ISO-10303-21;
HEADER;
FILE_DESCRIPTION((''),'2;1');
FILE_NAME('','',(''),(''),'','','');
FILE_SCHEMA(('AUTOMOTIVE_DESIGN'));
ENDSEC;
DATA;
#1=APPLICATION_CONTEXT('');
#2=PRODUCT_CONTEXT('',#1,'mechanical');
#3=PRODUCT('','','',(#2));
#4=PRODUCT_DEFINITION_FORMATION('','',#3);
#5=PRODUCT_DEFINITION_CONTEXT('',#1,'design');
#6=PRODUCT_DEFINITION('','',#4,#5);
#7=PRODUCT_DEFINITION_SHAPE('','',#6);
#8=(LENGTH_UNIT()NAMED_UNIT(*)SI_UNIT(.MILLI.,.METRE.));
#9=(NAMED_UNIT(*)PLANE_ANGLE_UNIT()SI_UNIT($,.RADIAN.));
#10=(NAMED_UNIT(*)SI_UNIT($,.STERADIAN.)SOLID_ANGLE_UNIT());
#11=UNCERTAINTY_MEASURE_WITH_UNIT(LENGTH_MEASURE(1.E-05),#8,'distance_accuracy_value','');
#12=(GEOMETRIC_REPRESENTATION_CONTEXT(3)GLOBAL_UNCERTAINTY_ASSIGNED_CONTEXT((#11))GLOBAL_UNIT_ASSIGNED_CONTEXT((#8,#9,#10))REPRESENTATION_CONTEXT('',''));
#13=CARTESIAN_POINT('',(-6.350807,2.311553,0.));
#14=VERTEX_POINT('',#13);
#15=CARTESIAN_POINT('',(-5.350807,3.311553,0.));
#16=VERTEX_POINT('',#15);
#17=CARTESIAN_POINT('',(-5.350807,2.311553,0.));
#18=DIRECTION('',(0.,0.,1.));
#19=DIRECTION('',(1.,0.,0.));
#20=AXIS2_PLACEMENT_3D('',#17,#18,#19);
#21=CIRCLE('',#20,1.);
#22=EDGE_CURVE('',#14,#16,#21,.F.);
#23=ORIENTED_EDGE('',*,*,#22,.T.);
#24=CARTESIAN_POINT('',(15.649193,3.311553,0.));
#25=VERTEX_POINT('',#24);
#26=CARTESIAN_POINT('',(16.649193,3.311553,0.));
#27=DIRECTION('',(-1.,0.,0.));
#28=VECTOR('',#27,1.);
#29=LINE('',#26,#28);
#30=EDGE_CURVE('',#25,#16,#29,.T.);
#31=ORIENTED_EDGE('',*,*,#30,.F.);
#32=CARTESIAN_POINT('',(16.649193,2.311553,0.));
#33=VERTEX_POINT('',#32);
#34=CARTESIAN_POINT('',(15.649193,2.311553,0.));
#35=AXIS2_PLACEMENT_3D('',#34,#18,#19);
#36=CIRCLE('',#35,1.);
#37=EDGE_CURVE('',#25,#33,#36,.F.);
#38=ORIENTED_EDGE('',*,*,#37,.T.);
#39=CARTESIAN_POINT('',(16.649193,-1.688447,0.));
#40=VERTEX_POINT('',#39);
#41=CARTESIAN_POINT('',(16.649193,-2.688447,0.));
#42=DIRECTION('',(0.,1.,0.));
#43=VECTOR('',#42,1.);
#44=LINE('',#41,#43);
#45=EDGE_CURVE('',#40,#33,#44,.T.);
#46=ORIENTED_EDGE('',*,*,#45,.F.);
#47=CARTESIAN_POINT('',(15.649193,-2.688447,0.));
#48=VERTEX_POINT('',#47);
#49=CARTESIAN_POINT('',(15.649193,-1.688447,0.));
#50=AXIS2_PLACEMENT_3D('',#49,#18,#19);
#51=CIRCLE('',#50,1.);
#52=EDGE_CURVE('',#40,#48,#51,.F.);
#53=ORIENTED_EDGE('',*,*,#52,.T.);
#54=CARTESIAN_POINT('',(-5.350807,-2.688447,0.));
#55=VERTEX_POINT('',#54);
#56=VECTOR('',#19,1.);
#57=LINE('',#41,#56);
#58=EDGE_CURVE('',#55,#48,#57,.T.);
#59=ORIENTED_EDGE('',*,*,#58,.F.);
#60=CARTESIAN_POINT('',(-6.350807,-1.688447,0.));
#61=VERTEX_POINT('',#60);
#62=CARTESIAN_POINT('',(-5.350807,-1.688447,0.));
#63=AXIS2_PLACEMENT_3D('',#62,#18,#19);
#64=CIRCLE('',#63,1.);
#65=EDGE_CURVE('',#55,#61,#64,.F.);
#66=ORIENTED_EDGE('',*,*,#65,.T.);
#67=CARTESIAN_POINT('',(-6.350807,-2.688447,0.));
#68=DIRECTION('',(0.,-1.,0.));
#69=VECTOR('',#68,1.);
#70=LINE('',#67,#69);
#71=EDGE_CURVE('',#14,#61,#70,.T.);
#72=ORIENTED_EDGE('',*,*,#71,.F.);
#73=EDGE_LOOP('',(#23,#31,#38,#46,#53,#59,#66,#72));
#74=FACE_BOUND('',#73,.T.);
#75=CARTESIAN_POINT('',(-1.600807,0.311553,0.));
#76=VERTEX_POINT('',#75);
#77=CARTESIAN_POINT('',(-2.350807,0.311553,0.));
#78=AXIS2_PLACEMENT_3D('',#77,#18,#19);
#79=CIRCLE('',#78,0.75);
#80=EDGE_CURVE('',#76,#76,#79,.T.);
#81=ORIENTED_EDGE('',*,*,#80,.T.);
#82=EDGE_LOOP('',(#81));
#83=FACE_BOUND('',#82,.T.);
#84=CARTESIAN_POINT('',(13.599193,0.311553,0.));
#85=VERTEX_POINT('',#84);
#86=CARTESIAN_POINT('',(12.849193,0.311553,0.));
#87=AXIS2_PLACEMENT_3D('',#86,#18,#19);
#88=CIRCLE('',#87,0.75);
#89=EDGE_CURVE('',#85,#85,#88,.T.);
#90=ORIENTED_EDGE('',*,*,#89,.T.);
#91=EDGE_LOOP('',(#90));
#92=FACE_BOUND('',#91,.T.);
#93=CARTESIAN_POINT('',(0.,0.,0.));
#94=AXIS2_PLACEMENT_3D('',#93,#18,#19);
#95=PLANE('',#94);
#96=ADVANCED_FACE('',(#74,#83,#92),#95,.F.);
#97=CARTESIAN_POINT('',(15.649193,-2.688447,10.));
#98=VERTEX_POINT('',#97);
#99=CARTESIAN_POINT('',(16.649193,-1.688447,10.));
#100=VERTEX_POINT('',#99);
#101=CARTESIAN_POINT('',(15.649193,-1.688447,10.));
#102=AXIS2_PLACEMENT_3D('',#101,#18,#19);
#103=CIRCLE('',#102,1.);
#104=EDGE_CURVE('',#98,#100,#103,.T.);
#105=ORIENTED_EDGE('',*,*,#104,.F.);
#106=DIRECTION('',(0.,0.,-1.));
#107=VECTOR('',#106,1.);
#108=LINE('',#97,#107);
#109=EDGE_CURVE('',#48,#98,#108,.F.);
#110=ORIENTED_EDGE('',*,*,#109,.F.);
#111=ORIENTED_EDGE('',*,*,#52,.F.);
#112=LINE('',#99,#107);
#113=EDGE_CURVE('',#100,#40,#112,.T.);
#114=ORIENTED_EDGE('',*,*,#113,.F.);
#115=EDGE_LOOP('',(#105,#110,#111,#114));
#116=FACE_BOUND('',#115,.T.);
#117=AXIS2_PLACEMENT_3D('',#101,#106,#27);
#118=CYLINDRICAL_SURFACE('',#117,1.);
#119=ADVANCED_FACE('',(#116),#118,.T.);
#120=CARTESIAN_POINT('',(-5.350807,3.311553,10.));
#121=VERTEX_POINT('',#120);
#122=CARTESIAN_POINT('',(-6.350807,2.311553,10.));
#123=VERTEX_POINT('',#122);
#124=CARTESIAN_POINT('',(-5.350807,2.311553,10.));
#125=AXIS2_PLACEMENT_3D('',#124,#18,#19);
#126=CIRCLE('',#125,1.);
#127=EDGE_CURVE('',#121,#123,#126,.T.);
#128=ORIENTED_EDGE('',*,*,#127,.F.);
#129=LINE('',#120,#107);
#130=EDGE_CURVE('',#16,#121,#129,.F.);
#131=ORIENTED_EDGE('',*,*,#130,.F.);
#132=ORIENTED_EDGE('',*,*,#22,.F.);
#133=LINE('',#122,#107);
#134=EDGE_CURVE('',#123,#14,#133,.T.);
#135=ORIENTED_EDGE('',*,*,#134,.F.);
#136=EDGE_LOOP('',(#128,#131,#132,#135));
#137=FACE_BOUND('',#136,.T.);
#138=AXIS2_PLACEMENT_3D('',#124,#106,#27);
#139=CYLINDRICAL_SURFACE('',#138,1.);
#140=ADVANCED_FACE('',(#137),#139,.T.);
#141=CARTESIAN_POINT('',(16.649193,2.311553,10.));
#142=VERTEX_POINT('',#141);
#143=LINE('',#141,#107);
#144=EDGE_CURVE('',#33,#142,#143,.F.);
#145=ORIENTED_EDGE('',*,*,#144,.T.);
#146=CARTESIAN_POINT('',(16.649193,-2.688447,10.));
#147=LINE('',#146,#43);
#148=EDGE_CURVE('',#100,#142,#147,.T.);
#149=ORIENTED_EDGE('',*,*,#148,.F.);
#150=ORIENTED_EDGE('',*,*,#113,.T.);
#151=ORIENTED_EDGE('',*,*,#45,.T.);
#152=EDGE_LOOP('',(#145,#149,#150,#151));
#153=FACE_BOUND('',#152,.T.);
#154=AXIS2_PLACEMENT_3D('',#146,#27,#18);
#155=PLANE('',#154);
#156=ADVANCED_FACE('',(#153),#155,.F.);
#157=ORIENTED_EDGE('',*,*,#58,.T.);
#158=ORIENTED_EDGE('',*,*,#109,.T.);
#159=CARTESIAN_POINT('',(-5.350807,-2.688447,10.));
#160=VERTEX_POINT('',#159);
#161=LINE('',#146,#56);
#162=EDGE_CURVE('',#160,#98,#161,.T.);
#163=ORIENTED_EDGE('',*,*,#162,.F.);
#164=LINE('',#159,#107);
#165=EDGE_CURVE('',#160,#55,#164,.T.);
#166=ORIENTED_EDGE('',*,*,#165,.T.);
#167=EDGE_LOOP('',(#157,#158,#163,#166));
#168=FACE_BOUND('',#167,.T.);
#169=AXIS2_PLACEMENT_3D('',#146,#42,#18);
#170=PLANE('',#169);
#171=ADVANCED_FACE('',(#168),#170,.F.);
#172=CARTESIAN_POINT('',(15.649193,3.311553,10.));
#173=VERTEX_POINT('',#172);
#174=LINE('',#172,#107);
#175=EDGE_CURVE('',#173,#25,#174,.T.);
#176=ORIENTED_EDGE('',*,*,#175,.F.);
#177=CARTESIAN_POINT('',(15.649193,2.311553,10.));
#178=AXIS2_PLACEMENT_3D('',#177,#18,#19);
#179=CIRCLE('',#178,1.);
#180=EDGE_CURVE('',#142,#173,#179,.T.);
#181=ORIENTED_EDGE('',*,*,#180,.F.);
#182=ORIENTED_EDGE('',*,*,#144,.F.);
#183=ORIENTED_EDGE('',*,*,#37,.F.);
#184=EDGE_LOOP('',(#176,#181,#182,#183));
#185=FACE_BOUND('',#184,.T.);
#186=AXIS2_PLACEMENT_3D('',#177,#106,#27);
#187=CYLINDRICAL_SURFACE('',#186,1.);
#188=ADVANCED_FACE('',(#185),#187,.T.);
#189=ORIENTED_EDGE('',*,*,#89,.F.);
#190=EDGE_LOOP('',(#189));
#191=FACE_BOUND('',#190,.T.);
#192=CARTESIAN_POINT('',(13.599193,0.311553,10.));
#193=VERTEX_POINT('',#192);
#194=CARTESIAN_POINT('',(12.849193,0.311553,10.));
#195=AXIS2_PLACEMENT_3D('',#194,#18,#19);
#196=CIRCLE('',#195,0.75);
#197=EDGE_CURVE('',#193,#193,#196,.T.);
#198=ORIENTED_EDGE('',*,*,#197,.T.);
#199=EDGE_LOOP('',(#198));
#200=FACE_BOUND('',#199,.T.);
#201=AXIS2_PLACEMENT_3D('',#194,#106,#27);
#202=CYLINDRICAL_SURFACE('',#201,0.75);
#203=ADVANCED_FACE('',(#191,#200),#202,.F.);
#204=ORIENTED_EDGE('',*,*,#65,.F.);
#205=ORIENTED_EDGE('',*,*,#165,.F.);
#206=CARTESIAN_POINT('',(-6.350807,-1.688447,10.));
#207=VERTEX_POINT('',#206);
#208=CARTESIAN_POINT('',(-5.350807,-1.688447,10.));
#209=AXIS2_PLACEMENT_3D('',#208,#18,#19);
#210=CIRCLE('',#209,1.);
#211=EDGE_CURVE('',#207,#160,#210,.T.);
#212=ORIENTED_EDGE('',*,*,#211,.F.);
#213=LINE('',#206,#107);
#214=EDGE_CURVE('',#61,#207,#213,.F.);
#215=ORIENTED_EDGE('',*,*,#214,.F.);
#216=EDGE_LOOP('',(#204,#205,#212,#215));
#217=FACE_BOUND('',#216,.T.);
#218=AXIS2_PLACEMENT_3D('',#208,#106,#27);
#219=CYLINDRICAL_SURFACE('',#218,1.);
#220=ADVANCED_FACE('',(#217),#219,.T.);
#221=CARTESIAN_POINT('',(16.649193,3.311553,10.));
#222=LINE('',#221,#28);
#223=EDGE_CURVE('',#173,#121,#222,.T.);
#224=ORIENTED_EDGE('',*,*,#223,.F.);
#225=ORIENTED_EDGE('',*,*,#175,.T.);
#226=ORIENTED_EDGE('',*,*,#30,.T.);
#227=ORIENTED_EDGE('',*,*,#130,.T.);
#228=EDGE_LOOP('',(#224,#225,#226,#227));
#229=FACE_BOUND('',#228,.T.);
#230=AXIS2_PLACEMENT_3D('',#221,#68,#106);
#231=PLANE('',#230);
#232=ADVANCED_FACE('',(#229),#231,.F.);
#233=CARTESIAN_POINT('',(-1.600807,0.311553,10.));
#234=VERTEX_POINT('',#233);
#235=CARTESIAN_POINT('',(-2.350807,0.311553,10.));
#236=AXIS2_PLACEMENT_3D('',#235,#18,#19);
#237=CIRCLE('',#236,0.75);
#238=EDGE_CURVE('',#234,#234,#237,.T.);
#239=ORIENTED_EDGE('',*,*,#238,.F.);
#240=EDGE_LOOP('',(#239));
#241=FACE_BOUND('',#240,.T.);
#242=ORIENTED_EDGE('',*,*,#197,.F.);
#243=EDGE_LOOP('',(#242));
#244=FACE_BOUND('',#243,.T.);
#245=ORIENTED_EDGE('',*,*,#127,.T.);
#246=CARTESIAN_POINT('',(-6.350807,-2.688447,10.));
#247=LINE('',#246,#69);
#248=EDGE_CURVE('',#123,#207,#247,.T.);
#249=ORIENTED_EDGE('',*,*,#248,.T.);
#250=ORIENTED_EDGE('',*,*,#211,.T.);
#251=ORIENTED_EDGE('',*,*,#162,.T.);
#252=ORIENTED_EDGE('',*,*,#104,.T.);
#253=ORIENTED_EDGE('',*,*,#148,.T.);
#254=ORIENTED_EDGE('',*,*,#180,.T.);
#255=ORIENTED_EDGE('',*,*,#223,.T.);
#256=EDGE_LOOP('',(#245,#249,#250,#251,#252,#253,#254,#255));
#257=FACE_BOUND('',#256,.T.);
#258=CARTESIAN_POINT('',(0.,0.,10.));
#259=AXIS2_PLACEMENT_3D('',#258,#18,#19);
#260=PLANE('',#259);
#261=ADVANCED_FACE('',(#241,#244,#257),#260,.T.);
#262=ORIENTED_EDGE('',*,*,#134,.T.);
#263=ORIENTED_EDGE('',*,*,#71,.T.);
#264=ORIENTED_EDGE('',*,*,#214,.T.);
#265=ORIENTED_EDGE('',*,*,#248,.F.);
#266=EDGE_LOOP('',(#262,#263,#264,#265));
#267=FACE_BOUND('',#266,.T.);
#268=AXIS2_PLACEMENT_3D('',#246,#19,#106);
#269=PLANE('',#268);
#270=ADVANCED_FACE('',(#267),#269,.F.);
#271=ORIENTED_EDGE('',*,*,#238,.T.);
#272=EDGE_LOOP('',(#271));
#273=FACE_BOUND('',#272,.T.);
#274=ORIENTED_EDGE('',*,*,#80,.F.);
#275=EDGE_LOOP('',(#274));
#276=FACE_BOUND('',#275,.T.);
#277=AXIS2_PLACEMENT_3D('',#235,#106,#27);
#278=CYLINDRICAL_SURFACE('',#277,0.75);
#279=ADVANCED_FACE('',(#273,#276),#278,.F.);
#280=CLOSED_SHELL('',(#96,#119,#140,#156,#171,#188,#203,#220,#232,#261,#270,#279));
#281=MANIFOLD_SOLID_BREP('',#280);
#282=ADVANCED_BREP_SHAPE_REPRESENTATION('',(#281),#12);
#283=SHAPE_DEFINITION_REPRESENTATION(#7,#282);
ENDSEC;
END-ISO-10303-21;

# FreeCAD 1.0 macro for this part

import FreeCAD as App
import Part
import Sketcher

V = App.Vector
Q = App.Units.Quantity


def edges_at(feature, points):
    """Names of the edges that pass closest to the given points."""
    edges = feature.Shape.Edges
    near = lambda p: min(range(len(edges)), key=lambda i: edges[i].distToShape(Part.Vertex(*p))[0])
    return sorted({f"Edge{near(p) + 1}" for p in points})

doc = App.newDocument("Part")
params = doc.addObject("Spreadsheet::Sheet", "Params")
for row, (alias, value) in enumerate([
    ("sketch1_diameter", "1.5 mm"),
    ("sketch1_width", "23 mm"),
    ("sketch1_height", "6 mm"),
    ("pad1_length", "10 mm"),
    ("fillet_radius", "1 mm"),
], start=1):
    params.set(f"A{row}", alias)
    params.set(f"B{row}", "=" + value)
    params.setAlias(f"B{row}", alias)

body = doc.addObject("PartDesign::Body", "Body")

# Sketch on XY plane
sketch1 = doc.addObject("Sketcher::SketchObject", "Sketch")
body.addObject(sketch1)
sketch1.AttachmentSupport = (doc.XY_Plane, [""])
sketch1.MapMode = "FlatFace"
sketch1.addGeometry(Part.LineSegment(V(-6.4, 3.3, 0), V(-6.4, -2.7, 0)), False)
sketch1.addGeometry(Part.LineSegment(V(-6.4, -2.7, 0), V(16.6, -2.7, 0)), False)
sketch1.addGeometry(Part.LineSegment(V(16.6, -2.7, 0), V(16.6, 3.3, 0)), False)
sketch1.addGeometry(Part.LineSegment(V(16.6, 3.3, 0), V(-6.4, 3.3, 0)), False)
sketch1.addGeometry(Part.Circle(V(-2.4, 0.3, 0), V(0, 0, 1), 0.8), False)
sketch1.addGeometry(Part.Circle(V(12.8, 0.3, 0), V(0, 0, 1), 0.8), False)
sketch1.addConstraint(Sketcher.Constraint("Coincident", 0, 2, 1, 1))
sketch1.addConstraint(Sketcher.Constraint("Coincident", 1, 2, 2, 1))
sketch1.addConstraint(Sketcher.Constraint("Coincident", 2, 2, 3, 1))
sketch1.addConstraint(Sketcher.Constraint("Coincident", 3, 2, 0, 1))
sketch1.addConstraint(Sketcher.Constraint("Vertical", 0))
sketch1.addConstraint(Sketcher.Constraint("Horizontal", 1))
sketch1.addConstraint(Sketcher.Constraint("Vertical", 2))
sketch1.addConstraint(Sketcher.Constraint("Horizontal", 3))
sketch1.addConstraint(Sketcher.Constraint("Equal", 4, 5))
sketch1.addConstraint(Sketcher.Constraint("Horizontal", 4, 3, 5, 3))
sketch1.addConstraint(Sketcher.Constraint("Diameter", 4, Q("1.5 mm")))
sketch1.addConstraint(Sketcher.Constraint("DistanceX", 1, 1, 1, 2, Q("23 mm")))
sketch1.addConstraint(Sketcher.Constraint("DistanceY", 0, 2, 0, 1, Q("6 mm")))
sketch1.addConstraint(Sketcher.Constraint("DistanceX", 0, 2, 4, 3, Q("4 mm")))
sketch1.addConstraint(Sketcher.Constraint("DistanceY", 0, 2, 4, 3, Q("3 mm")))
sketch1.addConstraint(Sketcher.Constraint("DistanceX", 4, 3, 5, 3, Q("15.2 mm")))
sketch1.addConstraint(Sketcher.Constraint("DistanceX", 4, 3, -1, 1, Q("2.350807 mm")))
sketch1.addConstraint(Sketcher.Constraint("DistanceY", -1, 1, 4, 3, Q("0.311553 mm")))
sketch1.setExpression("Constraints[10]", "Params.sketch1_diameter")
sketch1.setExpression("Constraints[11]", "Params.sketch1_width")
sketch1.setExpression("Constraints[12]", "Params.sketch1_height")
pad1 = doc.addObject("PartDesign::Pad", "Pad")
body.addObject(pad1)
pad1.Profile = sketch1
pad1.setExpression("Length", "Params.pad1_length")
doc.recompute()

fillet = doc.addObject("PartDesign::Fillet", "Fillet")
body.addObject(fillet)
fillet.Base = (pad1, edges_at(pad1, [
    (16.649, -2.688, 5),
    (-6.351, -2.688, 5),
    (-6.351, 3.312, 5),
    (16.649, 3.312, 5),
]))
fillet.setExpression("Radius", "Params.fillet_radius")

doc.recompute()
